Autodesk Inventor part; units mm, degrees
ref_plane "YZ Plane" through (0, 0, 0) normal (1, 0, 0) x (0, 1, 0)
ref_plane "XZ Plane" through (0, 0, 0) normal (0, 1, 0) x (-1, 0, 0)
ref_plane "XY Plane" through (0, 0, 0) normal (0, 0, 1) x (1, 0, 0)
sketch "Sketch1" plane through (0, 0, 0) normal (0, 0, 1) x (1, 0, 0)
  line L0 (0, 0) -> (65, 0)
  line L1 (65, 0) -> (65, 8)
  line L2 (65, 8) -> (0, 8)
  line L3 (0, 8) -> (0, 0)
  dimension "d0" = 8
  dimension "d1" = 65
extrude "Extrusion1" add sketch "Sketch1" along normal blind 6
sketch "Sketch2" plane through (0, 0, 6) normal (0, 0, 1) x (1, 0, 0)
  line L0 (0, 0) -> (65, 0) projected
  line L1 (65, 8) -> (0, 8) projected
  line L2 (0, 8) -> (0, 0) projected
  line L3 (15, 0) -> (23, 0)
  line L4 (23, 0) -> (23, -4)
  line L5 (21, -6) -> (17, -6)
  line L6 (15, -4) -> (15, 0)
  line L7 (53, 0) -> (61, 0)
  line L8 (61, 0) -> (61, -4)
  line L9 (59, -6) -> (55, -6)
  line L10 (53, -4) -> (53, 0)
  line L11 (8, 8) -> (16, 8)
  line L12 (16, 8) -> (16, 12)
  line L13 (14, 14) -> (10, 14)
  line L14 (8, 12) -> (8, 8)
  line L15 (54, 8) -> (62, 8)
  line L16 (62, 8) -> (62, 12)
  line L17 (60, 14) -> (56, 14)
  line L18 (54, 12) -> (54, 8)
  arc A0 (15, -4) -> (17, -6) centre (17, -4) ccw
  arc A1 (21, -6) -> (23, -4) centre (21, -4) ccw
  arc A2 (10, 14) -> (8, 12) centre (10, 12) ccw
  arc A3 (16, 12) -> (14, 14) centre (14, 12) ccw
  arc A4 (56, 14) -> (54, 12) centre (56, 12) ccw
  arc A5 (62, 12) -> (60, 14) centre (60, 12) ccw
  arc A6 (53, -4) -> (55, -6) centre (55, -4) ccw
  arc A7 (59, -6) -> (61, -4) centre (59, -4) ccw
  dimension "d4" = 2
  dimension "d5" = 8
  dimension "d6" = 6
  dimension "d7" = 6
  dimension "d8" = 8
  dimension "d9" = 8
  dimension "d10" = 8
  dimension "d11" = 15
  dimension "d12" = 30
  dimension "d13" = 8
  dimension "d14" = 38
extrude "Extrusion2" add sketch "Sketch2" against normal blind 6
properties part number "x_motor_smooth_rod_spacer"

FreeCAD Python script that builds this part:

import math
import FreeCAD as App
import Part
import Sketcher

V = App.Vector


def add_polygon(sketch, points):
    """Adds a closed chain of lines whose ends are joined by coincident constraints."""
    first, n = sketch.GeometryCount, len(points)
    for a, b in zip(points, points[1:] + points[:1]):
        sketch.addGeometry(Part.LineSegment(App.Vector(*a, 0), App.Vector(*b, 0)), False)
    for i in range(n):
        sketch.addConstraint(Sketcher.Constraint("Coincident", first + i, 2, first + (i + 1) % n, 1))

doc = App.newDocument("Part")
body = doc.addObject("PartDesign::Body", "Body")

# Sketch on XY plane
sketch1 = body.newObject("Sketcher::SketchObject", "Sketch")
sketch1.AttachmentSupport = (doc.getObject("XY_Plane"), [""])
sketch1.MapMode = "FlatFace"
add_polygon(sketch1, [(0, 8), (0, 0), (65, 0), (65, 8)])  # lines 0-3
sketch1.addConstraint(Sketcher.Constraint("Vertical", 0))
sketch1.addConstraint(Sketcher.Constraint("Horizontal", 1))
sketch1.addConstraint(Sketcher.Constraint("Vertical", 2))
sketch1.addConstraint(Sketcher.Constraint("Horizontal", 3))
sketch1.addConstraint(Sketcher.Constraint("Coincident", 0, 2, -1, 1))
sketch1.addConstraint(Sketcher.Constraint("DistanceX", 1, 1, 1, 2, 65.0))
sketch1.addConstraint(Sketcher.Constraint("DistanceY", 0, 2, 0, 1, 8.0))
pad1 = body.newObject("PartDesign::Pad", "Pad")
pad1.Profile = sketch1
pad1.Length = 6

# Sketch on XY plane
sketch2 = body.newObject("Sketcher::SketchObject", "Sketch001")
sketch2.AttachmentSupport = (doc.getObject("XY_Plane"), [""])
sketch2.MapMode = "FlatFace"
sketch2.AttachmentOffset = App.Placement(V(0, 0, 6), App.Rotation())
sketch2.addGeometry(Part.LineSegment(V(61, 0, 0), V(53, 0, 0)), False)
sketch2.addGeometry(Part.LineSegment(V(53, 0, 0), V(53, -4, 0)), False)
sketch2.addGeometry(Part.ArcOfCircle(Part.Circle(V(55, -4, 0), V(0, 0, 1), 2), math.radians(180), math.radians(270)), False)
sketch2.addGeometry(Part.LineSegment(V(55, -6, 0), V(59, -6, 0)), False)
sketch2.addGeometry(Part.ArcOfCircle(Part.Circle(V(59, -4, 0), V(0, 0, 1), 2), math.radians(-90), math.radians(0)), False)
sketch2.addGeometry(Part.LineSegment(V(61, -4, 0), V(61, 0, 0)), False)
sketch2.addGeometry(Part.LineSegment(V(23, 0, 0), V(15, 0, 0)), False)
sketch2.addGeometry(Part.LineSegment(V(15, 0, 0), V(15, -4, 0)), False)
sketch2.addGeometry(Part.ArcOfCircle(Part.Circle(V(17, -4, 0), V(0, 0, 1), 2), math.radians(180), math.radians(270)), False)
sketch2.addGeometry(Part.LineSegment(V(17, -6, 0), V(21, -6, 0)), False)
sketch2.addGeometry(Part.ArcOfCircle(Part.Circle(V(21, -4, 0), V(0, 0, 1), 2), math.radians(-90), math.radians(0)), False)
sketch2.addGeometry(Part.LineSegment(V(23, -4, 0), V(23, 0, 0)), False)
sketch2.addGeometry(Part.LineSegment(V(54, 12, 0), V(54, 8, 0)), False)
sketch2.addGeometry(Part.LineSegment(V(54, 8, 0), V(62, 8, 0)), False)
sketch2.addGeometry(Part.LineSegment(V(62, 8, 0), V(62, 12, 0)), False)
sketch2.addGeometry(Part.ArcOfCircle(Part.Circle(V(60, 12, 0), V(0, 0, 1), 2), math.radians(0), math.radians(90)), False)
sketch2.addGeometry(Part.LineSegment(V(60, 14, 0), V(56, 14, 0)), False)
sketch2.addGeometry(Part.ArcOfCircle(Part.Circle(V(56, 12, 0), V(0, 0, 1), 2), math.radians(90), math.radians(180)), False)
sketch2.addGeometry(Part.LineSegment(V(8, 12, 0), V(8, 8, 0)), False)
sketch2.addGeometry(Part.LineSegment(V(8, 8, 0), V(16, 8, 0)), False)
sketch2.addGeometry(Part.LineSegment(V(16, 8, 0), V(16, 12, 0)), False)
sketch2.addGeometry(Part.ArcOfCircle(Part.Circle(V(14, 12, 0), V(0, 0, 1), 2), math.radians(0), math.radians(90)), False)
sketch2.addGeometry(Part.LineSegment(V(14, 14, 0), V(10, 14, 0)), False)
sketch2.addGeometry(Part.ArcOfCircle(Part.Circle(V(10, 12, 0), V(0, 0, 1), 2), math.radians(90), math.radians(180)), False)
sketch2.addConstraint(Sketcher.Constraint("Coincident", 0, 2, 1, 1))
sketch2.addConstraint(Sketcher.Constraint("Tangent", 1, 2, 2, 1))
sketch2.addConstraint(Sketcher.Constraint("Tangent", 2, 2, 3, 1))
sketch2.addConstraint(Sketcher.Constraint("Tangent", 3, 2, 4, 1))
sketch2.addConstraint(Sketcher.Constraint("Tangent", 4, 2, 5, 1))
sketch2.addConstraint(Sketcher.Constraint("Coincident", 5, 2, 0, 1))
sketch2.addConstraint(Sketcher.Constraint("Coincident", 6, 2, 7, 1))
sketch2.addConstraint(Sketcher.Constraint("Tangent", 7, 2, 8, 1))
sketch2.addConstraint(Sketcher.Constraint("Tangent", 8, 2, 9, 1))
sketch2.addConstraint(Sketcher.Constraint("Tangent", 9, 2, 10, 1))
sketch2.addConstraint(Sketcher.Constraint("Tangent", 10, 2, 11, 1))
sketch2.addConstraint(Sketcher.Constraint("Coincident", 11, 2, 6, 1))
sketch2.addConstraint(Sketcher.Constraint("Coincident", 12, 2, 13, 1))
sketch2.addConstraint(Sketcher.Constraint("Coincident", 13, 2, 14, 1))
sketch2.addConstraint(Sketcher.Constraint("Tangent", 14, 2, 15, 1))
sketch2.addConstraint(Sketcher.Constraint("Tangent", 15, 2, 16, 1))
sketch2.addConstraint(Sketcher.Constraint("Tangent", 16, 2, 17, 1))
sketch2.addConstraint(Sketcher.Constraint("Tangent", 17, 2, 12, 1))
sketch2.addConstraint(Sketcher.Constraint("Coincident", 18, 2, 19, 1))
sketch2.addConstraint(Sketcher.Constraint("Coincident", 19, 2, 20, 1))
sketch2.addConstraint(Sketcher.Constraint("Tangent", 20, 2, 21, 1))
sketch2.addConstraint(Sketcher.Constraint("Tangent", 21, 2, 22, 1))
sketch2.addConstraint(Sketcher.Constraint("Tangent", 22, 2, 23, 1))
sketch2.addConstraint(Sketcher.Constraint("Tangent", 23, 2, 18, 1))
sketch2.addConstraint(Sketcher.Constraint("Horizontal", 0))
sketch2.addConstraint(Sketcher.Constraint("Vertical", 1))
sketch2.addConstraint(Sketcher.Constraint("Horizontal", 3))
sketch2.addConstraint(Sketcher.Constraint("Vertical", 5))
sketch2.addConstraint(Sketcher.Constraint("Horizontal", 6))
sketch2.addConstraint(Sketcher.Constraint("Vertical", 7))
sketch2.addConstraint(Sketcher.Constraint("Horizontal", 9))
sketch2.addConstraint(Sketcher.Constraint("Vertical", 11))
sketch2.addConstraint(Sketcher.Constraint("Vertical", 12))
sketch2.addConstraint(Sketcher.Constraint("Horizontal", 13))
sketch2.addConstraint(Sketcher.Constraint("Vertical", 14))
sketch2.addConstraint(Sketcher.Constraint("Horizontal", 16))
sketch2.addConstraint(Sketcher.Constraint("Vertical", 18))
sketch2.addConstraint(Sketcher.Constraint("Horizontal", 19))
sketch2.addConstraint(Sketcher.Constraint("Vertical", 20))
sketch2.addConstraint(Sketcher.Constraint("Horizontal", 22))
sketch2.addConstraint(Sketcher.Constraint("Equal", 2, 4))
sketch2.addConstraint(Sketcher.Constraint("Equal", 4, 8))
sketch2.addConstraint(Sketcher.Constraint("Equal", 8, 10))
sketch2.addConstraint(Sketcher.Constraint("Equal", 10, 15))
sketch2.addConstraint(Sketcher.Constraint("Equal", 15, 17))
sketch2.addConstraint(Sketcher.Constraint("Equal", 17, 21))
sketch2.addConstraint(Sketcher.Constraint("Equal", 21, 23))
sketch2.addConstraint(Sketcher.Constraint("PointOnObject", 0, 2, -1))
sketch2.addConstraint(Sketcher.Constraint("PointOnObject", 6, 2, -1))
sketch2.addConstraint(Sketcher.Constraint("Horizontal", 4, 3, 8, 3))
sketch2.addConstraint(Sketcher.Constraint("Horizontal", 17, 3, 21, 3))
sketch2.addConstraint(Sketcher.Constraint("Horizontal", 13, 2, 18, 2))
sketch2.addConstraint(Sketcher.Constraint("Equal", 0, 6))
sketch2.addConstraint(Sketcher.Constraint("Equal", 6, 13))
sketch2.addConstraint(Sketcher.Constraint("Equal", 13, 19))
sketch2.addConstraint(Sketcher.Constraint("Equal", 22, 1))
sketch2.addConstraint(Sketcher.Constraint("Equal", 11, 12))
sketch2.addConstraint(Sketcher.Constraint("Radius", 2, 2.0))
sketch2.addConstraint(Sketcher.Constraint("DistanceX", 0, 2, 0, 1, 8.0))
sketch2.addConstraint(Sketcher.Constraint("DistanceX", -1, 1, 6, 2, 15.0))
sketch2.addConstraint(Sketcher.Constraint("DistanceY", -1, 1, 12, 2, 8.0))
sketch2.addConstraint(Sketcher.Constraint("DistanceX", -1, 1, 18, 2, 8.0))
sketch2.addConstraint(Sketcher.Constraint("DistanceX", 8, 3, 2, 3, 38.0))
sketch2.addConstraint(Sketcher.Constraint("DistanceX", -1, 1, 15, 3, 60.0))
pad2 = body.newObject("PartDesign::Pad", "Pad001")
pad2.Profile = sketch2
pad2.Length = 6
pad2.Reversed = True

doc.recompute()
